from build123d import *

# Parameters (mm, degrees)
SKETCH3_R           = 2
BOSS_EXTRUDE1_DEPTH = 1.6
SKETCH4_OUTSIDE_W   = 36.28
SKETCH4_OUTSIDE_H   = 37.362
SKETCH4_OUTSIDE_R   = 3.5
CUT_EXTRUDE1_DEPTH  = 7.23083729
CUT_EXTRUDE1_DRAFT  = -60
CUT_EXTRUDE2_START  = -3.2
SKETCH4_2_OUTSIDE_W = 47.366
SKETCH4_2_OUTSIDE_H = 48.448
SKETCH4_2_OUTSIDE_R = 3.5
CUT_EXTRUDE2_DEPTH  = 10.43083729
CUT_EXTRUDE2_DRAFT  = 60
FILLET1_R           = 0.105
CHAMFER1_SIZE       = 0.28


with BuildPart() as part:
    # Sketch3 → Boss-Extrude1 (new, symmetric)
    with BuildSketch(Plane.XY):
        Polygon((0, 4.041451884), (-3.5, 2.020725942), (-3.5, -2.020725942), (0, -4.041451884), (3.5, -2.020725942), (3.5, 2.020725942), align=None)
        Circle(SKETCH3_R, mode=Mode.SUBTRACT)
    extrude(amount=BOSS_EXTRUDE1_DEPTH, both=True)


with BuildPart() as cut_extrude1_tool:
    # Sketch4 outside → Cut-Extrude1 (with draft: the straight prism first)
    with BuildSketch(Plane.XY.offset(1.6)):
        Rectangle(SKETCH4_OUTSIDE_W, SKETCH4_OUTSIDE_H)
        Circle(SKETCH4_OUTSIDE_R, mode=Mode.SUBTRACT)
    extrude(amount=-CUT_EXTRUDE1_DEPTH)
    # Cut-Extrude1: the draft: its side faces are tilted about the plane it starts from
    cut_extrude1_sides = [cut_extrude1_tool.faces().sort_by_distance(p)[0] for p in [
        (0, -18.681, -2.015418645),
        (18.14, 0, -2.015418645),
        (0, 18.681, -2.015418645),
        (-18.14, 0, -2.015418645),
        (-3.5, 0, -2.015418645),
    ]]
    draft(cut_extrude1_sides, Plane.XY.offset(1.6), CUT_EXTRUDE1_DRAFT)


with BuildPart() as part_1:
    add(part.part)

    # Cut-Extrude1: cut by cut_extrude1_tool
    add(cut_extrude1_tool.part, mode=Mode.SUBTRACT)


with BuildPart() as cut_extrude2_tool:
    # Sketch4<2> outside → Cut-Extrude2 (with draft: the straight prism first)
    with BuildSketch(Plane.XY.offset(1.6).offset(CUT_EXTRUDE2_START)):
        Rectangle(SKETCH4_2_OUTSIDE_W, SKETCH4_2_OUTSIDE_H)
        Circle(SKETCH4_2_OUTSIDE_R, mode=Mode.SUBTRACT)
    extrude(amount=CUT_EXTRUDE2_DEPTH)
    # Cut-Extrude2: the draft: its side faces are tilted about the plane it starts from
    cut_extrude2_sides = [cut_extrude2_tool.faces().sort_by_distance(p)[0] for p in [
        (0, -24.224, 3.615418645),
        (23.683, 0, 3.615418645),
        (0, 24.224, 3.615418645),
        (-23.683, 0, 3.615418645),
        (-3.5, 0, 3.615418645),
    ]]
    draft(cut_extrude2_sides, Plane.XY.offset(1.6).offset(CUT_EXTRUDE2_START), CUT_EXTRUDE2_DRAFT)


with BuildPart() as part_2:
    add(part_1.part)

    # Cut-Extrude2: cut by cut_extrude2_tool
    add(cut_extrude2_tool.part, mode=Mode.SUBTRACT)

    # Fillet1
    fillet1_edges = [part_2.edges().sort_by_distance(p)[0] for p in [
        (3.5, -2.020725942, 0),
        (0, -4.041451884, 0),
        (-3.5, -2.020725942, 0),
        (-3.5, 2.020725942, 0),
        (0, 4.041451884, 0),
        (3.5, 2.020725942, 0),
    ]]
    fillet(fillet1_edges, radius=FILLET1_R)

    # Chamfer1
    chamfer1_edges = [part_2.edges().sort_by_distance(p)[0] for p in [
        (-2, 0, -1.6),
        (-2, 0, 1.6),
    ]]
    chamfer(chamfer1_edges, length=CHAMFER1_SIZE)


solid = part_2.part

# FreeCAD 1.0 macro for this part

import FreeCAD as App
import Part
import Sketcher
from FreeCAD import Vector
Q = App.Units.Quantity


def edges_at(feature, points):
    """Names of the edges that pass closest to the given points."""
    edges = feature.Shape.Edges
    near = lambda p: min(range(len(edges)), key=lambda i: edges[i].distToShape(Part.Vertex(*p))[0])
    return sorted({f"Edge{near(p) + 1}" for p in points})


def faces_at(feature, points):
    """Names of the faces that lie closest to the given points."""
    faces = feature.Shape.Faces
    near = lambda p: min(range(len(faces)), key=lambda i: faces[i].distToShape(Part.Vertex(*p))[0])
    return sorted({f"Face{near(p) + 1}" for p in points})

doc = App.newDocument("Part")
body = doc.addObject("PartDesign::Body", "Body")

# Sketch on XY plane
sketch1 = body.newObject("Sketcher::SketchObject", "Sketch")
sketch1.AttachmentSupport = (doc.getObject("XY_Plane"), [""])
sketch1.MapMode = "FlatFace"
sketch1.addGeometry([
    Part.LineSegment(Vector(0, 4, 0), Vector(-3.5, 2, 0)),  # 0
    Part.LineSegment(Vector(-3.5, 2, 0), Vector(-3.5, -2, 0)),  # 1
    Part.LineSegment(Vector(-3.5, -2, 0), Vector(0, -4, 0)),  # 2
    Part.LineSegment(Vector(0, -4, 0), Vector(3.5, -2, 0)),  # 3
    Part.LineSegment(Vector(3.5, -2, 0), Vector(3.5, 2, 0)),  # 4
    Part.LineSegment(Vector(3.5, 2, 0), Vector(0, 4, 0)),  # 5
    Part.Circle(Vector(0, 0, 0), Vector(0, 0, 1), 2),  # 6
], False)
sketch1.addConstraint([
    Sketcher.Constraint("Coincident", 0, 2, 1, 1),
    Sketcher.Constraint("Coincident", 1, 2, 2, 1),
    Sketcher.Constraint("Coincident", 2, 2, 3, 1),
    Sketcher.Constraint("Coincident", 3, 2, 4, 1),
    Sketcher.Constraint("Coincident", 4, 2, 5, 1),
    Sketcher.Constraint("Coincident", 5, 2, 0, 1),
    Sketcher.Constraint("Vertical", 1),
    Sketcher.Constraint("Vertical", 4),
    Sketcher.Constraint("Coincident", 6, 3, -1, 1),
    Sketcher.Constraint("Symmetric", 0, 2, 3, 2, -1, 1),
    Sketcher.Constraint("Symmetric", 2, 2, 5, 2, -1, 1),
    Sketcher.Constraint("PointOnObject", 2, 2, -2),
    Sketcher.Constraint("Parallel", 2, 5),
    Sketcher.Constraint("Horizontal", 1, 2, 3, 2),
    Sketcher.Constraint("Diameter", 6, Q("4 mm")),
    Sketcher.Constraint("Angle", 0, Q("-150 deg")),
    Sketcher.Constraint("DistanceX", 1, 2, 3, 2, Q("7 mm")),
    Sketcher.Constraint("DistanceY", 1, 2, 1, 1, Q("4.041452 mm")),
])
pad1 = body.newObject("PartDesign::Pad", "Pad")
pad1.Profile = sketch1
pad1.Length = 3.2
pad1.Midplane = True
body2 = doc.addObject("PartDesign::Body", "Body001")

# Sketch on XY plane
sketch2 = body2.newObject("Sketcher::SketchObject", "Sketch001")
sketch2.AttachmentSupport = (doc.getObject("XY_Plane001"), [""])
sketch2.MapMode = "FlatFace"
sketch2.AttachmentOffset = App.Placement(Vector(0, 0, 1.6), App.Rotation())
sketch2.addGeometry([
    Part.LineSegment(Vector(-18.1, 18.7, 0), Vector(-18.1, -18.7, 0)),  # 0
    Part.LineSegment(Vector(-18.1, -18.7, 0), Vector(18.1, -18.7, 0)),  # 1
    Part.LineSegment(Vector(18.1, -18.7, 0), Vector(18.1, 18.7, 0)),  # 2
    Part.LineSegment(Vector(18.1, 18.7, 0), Vector(-18.1, 18.7, 0)),  # 3
    Part.Circle(Vector(0, 0, 0), Vector(0, 0, 1), 3.5),  # 4
], False)
sketch2.addConstraint([
    Sketcher.Constraint("Coincident", 0, 2, 1, 1),
    Sketcher.Constraint("Coincident", 1, 2, 2, 1),
    Sketcher.Constraint("Coincident", 2, 2, 3, 1),
    Sketcher.Constraint("Coincident", 3, 2, 0, 1),
    Sketcher.Constraint("Vertical", 0),
    Sketcher.Constraint("Horizontal", 1),
    Sketcher.Constraint("Vertical", 2),
    Sketcher.Constraint("Horizontal", 3),
    Sketcher.Constraint("Coincident", 4, 3, -1, 1),
    Sketcher.Constraint("Symmetric", 0, 2, 2, 2, -1, 1),
    Sketcher.Constraint("Diameter", 4, Q("7 mm")),
    Sketcher.Constraint("DistanceX", 1, 1, 1, 2, Q("36.28 mm")),
    Sketcher.Constraint("DistanceY", 0, 2, 0, 1, Q("37.362 mm")),
])
pad2 = body2.newObject("PartDesign::Pad", "Pad001")
pad2.Profile = sketch2
pad2.Length = 7.230837
pad2.Reversed = True
doc.recompute()

datumplane = body2.newObject("PartDesign::Plane", "DatumPlane")
datumplane.AttachmentSupport = (doc.getObject("XY_Plane001"), [""])
datumplane.MapMode = "FlatFace"
datumplane.AttachmentOffset = App.Placement(Vector(0, 0, 1.6), App.Rotation())
draft = body2.newObject("PartDesign::Draft", "Draft")
draft.Base = (pad2, faces_at(pad2, [
    (0, -18.681, -2.015),
    (18.14, 0, -2.015),
    (0, 18.681, -2.015),
    (-18.14, 0, -2.015),
    (-3.5, 0, -2.015),
]))
draft.NeutralPlane = (datumplane, [""])
draft.Angle = 60
draft.Reversed = True
doc.recompute()

boolean = body.newObject("PartDesign::Boolean", "Boolean")
boolean.Type = "Cut"
boolean.addObjects([body2])
body3 = doc.addObject("PartDesign::Body", "Body002")

# Sketch on XY plane
sketch3 = body3.newObject("Sketcher::SketchObject", "Sketch002")
sketch3.AttachmentSupport = (doc.getObject("XY_Plane002"), [""])
sketch3.MapMode = "FlatFace"
sketch3.AttachmentOffset = App.Placement(Vector(0, 0, -1.6), App.Rotation())
sketch3.addGeometry([
    Part.LineSegment(Vector(-23.7, 24.2, 0), Vector(-23.7, -24.2, 0)),  # 0
    Part.LineSegment(Vector(-23.7, -24.2, 0), Vector(23.7, -24.2, 0)),  # 1
    Part.LineSegment(Vector(23.7, -24.2, 0), Vector(23.7, 24.2, 0)),  # 2
    Part.LineSegment(Vector(23.7, 24.2, 0), Vector(-23.7, 24.2, 0)),  # 3
    Part.Circle(Vector(0, 0, 0), Vector(0, 0, 1), 3.5),  # 4
], False)
sketch3.addConstraint([
    Sketcher.Constraint("Coincident", 0, 2, 1, 1),
    Sketcher.Constraint("Coincident", 1, 2, 2, 1),
    Sketcher.Constraint("Coincident", 2, 2, 3, 1),
    Sketcher.Constraint("Coincident", 3, 2, 0, 1),
    Sketcher.Constraint("Vertical", 0),
    Sketcher.Constraint("Horizontal", 1),
    Sketcher.Constraint("Vertical", 2),
    Sketcher.Constraint("Horizontal", 3),
    Sketcher.Constraint("Coincident", 4, 3, -1, 1),
    Sketcher.Constraint("Symmetric", 0, 2, 2, 2, -1, 1),
    Sketcher.Constraint("Diameter", 4, Q("7 mm")),
    Sketcher.Constraint("DistanceX", 1, 1, 1, 2, Q("47.366 mm")),
    Sketcher.Constraint("DistanceY", 0, 2, 0, 1, Q("48.448 mm")),
])
pad3 = body3.newObject("PartDesign::Pad", "Pad002")
pad3.Profile = sketch3
pad3.Length = 10.430837
doc.recompute()

datumplane2 = body3.newObject("PartDesign::Plane", "DatumPlane001")
datumplane2.AttachmentSupport = (doc.getObject("XY_Plane002"), [""])
datumplane2.MapMode = "FlatFace"
datumplane2.AttachmentOffset = App.Placement(Vector(0, 0, -1.6), App.Rotation())
draft2 = body3.newObject("PartDesign::Draft", "Draft001")
draft2.Base = (pad3, faces_at(pad3, [
    (0, -24.224, 3.615),
    (23.683, 0, 3.615),
    (0, 24.224, 3.615),
    (-23.683, 0, 3.615),
    (-3.5, 0, 3.615),
]))
draft2.NeutralPlane = (datumplane2, [""])
draft2.Angle = 60
draft2.Reversed = False
doc.recompute()

boolean2 = body.newObject("PartDesign::Boolean", "Boolean001")
boolean2.Type = "Cut"
boolean2.addObjects([body3])
doc.recompute()

fillet = body.newObject("PartDesign::Fillet", "Fillet")
fillet.Base = (boolean2, edges_at(boolean2, [
    (3.5, -2.021, 0),
    (0, -4.041, 0),
    (-3.5, -2.021, 0),
    (-3.5, 2.021, 0),
    (0, 4.041, 0),
    (3.5, 2.021, 0),
]))
fillet.Radius = 0.105
doc.recompute()

chamfer = body.newObject("PartDesign::Chamfer", "Chamfer")
chamfer.Base = (fillet, edges_at(fillet, [(-2, 0, -1.6), (-2, 0, 1.6)]))
chamfer.Size = 0.28

doc.recompute()
